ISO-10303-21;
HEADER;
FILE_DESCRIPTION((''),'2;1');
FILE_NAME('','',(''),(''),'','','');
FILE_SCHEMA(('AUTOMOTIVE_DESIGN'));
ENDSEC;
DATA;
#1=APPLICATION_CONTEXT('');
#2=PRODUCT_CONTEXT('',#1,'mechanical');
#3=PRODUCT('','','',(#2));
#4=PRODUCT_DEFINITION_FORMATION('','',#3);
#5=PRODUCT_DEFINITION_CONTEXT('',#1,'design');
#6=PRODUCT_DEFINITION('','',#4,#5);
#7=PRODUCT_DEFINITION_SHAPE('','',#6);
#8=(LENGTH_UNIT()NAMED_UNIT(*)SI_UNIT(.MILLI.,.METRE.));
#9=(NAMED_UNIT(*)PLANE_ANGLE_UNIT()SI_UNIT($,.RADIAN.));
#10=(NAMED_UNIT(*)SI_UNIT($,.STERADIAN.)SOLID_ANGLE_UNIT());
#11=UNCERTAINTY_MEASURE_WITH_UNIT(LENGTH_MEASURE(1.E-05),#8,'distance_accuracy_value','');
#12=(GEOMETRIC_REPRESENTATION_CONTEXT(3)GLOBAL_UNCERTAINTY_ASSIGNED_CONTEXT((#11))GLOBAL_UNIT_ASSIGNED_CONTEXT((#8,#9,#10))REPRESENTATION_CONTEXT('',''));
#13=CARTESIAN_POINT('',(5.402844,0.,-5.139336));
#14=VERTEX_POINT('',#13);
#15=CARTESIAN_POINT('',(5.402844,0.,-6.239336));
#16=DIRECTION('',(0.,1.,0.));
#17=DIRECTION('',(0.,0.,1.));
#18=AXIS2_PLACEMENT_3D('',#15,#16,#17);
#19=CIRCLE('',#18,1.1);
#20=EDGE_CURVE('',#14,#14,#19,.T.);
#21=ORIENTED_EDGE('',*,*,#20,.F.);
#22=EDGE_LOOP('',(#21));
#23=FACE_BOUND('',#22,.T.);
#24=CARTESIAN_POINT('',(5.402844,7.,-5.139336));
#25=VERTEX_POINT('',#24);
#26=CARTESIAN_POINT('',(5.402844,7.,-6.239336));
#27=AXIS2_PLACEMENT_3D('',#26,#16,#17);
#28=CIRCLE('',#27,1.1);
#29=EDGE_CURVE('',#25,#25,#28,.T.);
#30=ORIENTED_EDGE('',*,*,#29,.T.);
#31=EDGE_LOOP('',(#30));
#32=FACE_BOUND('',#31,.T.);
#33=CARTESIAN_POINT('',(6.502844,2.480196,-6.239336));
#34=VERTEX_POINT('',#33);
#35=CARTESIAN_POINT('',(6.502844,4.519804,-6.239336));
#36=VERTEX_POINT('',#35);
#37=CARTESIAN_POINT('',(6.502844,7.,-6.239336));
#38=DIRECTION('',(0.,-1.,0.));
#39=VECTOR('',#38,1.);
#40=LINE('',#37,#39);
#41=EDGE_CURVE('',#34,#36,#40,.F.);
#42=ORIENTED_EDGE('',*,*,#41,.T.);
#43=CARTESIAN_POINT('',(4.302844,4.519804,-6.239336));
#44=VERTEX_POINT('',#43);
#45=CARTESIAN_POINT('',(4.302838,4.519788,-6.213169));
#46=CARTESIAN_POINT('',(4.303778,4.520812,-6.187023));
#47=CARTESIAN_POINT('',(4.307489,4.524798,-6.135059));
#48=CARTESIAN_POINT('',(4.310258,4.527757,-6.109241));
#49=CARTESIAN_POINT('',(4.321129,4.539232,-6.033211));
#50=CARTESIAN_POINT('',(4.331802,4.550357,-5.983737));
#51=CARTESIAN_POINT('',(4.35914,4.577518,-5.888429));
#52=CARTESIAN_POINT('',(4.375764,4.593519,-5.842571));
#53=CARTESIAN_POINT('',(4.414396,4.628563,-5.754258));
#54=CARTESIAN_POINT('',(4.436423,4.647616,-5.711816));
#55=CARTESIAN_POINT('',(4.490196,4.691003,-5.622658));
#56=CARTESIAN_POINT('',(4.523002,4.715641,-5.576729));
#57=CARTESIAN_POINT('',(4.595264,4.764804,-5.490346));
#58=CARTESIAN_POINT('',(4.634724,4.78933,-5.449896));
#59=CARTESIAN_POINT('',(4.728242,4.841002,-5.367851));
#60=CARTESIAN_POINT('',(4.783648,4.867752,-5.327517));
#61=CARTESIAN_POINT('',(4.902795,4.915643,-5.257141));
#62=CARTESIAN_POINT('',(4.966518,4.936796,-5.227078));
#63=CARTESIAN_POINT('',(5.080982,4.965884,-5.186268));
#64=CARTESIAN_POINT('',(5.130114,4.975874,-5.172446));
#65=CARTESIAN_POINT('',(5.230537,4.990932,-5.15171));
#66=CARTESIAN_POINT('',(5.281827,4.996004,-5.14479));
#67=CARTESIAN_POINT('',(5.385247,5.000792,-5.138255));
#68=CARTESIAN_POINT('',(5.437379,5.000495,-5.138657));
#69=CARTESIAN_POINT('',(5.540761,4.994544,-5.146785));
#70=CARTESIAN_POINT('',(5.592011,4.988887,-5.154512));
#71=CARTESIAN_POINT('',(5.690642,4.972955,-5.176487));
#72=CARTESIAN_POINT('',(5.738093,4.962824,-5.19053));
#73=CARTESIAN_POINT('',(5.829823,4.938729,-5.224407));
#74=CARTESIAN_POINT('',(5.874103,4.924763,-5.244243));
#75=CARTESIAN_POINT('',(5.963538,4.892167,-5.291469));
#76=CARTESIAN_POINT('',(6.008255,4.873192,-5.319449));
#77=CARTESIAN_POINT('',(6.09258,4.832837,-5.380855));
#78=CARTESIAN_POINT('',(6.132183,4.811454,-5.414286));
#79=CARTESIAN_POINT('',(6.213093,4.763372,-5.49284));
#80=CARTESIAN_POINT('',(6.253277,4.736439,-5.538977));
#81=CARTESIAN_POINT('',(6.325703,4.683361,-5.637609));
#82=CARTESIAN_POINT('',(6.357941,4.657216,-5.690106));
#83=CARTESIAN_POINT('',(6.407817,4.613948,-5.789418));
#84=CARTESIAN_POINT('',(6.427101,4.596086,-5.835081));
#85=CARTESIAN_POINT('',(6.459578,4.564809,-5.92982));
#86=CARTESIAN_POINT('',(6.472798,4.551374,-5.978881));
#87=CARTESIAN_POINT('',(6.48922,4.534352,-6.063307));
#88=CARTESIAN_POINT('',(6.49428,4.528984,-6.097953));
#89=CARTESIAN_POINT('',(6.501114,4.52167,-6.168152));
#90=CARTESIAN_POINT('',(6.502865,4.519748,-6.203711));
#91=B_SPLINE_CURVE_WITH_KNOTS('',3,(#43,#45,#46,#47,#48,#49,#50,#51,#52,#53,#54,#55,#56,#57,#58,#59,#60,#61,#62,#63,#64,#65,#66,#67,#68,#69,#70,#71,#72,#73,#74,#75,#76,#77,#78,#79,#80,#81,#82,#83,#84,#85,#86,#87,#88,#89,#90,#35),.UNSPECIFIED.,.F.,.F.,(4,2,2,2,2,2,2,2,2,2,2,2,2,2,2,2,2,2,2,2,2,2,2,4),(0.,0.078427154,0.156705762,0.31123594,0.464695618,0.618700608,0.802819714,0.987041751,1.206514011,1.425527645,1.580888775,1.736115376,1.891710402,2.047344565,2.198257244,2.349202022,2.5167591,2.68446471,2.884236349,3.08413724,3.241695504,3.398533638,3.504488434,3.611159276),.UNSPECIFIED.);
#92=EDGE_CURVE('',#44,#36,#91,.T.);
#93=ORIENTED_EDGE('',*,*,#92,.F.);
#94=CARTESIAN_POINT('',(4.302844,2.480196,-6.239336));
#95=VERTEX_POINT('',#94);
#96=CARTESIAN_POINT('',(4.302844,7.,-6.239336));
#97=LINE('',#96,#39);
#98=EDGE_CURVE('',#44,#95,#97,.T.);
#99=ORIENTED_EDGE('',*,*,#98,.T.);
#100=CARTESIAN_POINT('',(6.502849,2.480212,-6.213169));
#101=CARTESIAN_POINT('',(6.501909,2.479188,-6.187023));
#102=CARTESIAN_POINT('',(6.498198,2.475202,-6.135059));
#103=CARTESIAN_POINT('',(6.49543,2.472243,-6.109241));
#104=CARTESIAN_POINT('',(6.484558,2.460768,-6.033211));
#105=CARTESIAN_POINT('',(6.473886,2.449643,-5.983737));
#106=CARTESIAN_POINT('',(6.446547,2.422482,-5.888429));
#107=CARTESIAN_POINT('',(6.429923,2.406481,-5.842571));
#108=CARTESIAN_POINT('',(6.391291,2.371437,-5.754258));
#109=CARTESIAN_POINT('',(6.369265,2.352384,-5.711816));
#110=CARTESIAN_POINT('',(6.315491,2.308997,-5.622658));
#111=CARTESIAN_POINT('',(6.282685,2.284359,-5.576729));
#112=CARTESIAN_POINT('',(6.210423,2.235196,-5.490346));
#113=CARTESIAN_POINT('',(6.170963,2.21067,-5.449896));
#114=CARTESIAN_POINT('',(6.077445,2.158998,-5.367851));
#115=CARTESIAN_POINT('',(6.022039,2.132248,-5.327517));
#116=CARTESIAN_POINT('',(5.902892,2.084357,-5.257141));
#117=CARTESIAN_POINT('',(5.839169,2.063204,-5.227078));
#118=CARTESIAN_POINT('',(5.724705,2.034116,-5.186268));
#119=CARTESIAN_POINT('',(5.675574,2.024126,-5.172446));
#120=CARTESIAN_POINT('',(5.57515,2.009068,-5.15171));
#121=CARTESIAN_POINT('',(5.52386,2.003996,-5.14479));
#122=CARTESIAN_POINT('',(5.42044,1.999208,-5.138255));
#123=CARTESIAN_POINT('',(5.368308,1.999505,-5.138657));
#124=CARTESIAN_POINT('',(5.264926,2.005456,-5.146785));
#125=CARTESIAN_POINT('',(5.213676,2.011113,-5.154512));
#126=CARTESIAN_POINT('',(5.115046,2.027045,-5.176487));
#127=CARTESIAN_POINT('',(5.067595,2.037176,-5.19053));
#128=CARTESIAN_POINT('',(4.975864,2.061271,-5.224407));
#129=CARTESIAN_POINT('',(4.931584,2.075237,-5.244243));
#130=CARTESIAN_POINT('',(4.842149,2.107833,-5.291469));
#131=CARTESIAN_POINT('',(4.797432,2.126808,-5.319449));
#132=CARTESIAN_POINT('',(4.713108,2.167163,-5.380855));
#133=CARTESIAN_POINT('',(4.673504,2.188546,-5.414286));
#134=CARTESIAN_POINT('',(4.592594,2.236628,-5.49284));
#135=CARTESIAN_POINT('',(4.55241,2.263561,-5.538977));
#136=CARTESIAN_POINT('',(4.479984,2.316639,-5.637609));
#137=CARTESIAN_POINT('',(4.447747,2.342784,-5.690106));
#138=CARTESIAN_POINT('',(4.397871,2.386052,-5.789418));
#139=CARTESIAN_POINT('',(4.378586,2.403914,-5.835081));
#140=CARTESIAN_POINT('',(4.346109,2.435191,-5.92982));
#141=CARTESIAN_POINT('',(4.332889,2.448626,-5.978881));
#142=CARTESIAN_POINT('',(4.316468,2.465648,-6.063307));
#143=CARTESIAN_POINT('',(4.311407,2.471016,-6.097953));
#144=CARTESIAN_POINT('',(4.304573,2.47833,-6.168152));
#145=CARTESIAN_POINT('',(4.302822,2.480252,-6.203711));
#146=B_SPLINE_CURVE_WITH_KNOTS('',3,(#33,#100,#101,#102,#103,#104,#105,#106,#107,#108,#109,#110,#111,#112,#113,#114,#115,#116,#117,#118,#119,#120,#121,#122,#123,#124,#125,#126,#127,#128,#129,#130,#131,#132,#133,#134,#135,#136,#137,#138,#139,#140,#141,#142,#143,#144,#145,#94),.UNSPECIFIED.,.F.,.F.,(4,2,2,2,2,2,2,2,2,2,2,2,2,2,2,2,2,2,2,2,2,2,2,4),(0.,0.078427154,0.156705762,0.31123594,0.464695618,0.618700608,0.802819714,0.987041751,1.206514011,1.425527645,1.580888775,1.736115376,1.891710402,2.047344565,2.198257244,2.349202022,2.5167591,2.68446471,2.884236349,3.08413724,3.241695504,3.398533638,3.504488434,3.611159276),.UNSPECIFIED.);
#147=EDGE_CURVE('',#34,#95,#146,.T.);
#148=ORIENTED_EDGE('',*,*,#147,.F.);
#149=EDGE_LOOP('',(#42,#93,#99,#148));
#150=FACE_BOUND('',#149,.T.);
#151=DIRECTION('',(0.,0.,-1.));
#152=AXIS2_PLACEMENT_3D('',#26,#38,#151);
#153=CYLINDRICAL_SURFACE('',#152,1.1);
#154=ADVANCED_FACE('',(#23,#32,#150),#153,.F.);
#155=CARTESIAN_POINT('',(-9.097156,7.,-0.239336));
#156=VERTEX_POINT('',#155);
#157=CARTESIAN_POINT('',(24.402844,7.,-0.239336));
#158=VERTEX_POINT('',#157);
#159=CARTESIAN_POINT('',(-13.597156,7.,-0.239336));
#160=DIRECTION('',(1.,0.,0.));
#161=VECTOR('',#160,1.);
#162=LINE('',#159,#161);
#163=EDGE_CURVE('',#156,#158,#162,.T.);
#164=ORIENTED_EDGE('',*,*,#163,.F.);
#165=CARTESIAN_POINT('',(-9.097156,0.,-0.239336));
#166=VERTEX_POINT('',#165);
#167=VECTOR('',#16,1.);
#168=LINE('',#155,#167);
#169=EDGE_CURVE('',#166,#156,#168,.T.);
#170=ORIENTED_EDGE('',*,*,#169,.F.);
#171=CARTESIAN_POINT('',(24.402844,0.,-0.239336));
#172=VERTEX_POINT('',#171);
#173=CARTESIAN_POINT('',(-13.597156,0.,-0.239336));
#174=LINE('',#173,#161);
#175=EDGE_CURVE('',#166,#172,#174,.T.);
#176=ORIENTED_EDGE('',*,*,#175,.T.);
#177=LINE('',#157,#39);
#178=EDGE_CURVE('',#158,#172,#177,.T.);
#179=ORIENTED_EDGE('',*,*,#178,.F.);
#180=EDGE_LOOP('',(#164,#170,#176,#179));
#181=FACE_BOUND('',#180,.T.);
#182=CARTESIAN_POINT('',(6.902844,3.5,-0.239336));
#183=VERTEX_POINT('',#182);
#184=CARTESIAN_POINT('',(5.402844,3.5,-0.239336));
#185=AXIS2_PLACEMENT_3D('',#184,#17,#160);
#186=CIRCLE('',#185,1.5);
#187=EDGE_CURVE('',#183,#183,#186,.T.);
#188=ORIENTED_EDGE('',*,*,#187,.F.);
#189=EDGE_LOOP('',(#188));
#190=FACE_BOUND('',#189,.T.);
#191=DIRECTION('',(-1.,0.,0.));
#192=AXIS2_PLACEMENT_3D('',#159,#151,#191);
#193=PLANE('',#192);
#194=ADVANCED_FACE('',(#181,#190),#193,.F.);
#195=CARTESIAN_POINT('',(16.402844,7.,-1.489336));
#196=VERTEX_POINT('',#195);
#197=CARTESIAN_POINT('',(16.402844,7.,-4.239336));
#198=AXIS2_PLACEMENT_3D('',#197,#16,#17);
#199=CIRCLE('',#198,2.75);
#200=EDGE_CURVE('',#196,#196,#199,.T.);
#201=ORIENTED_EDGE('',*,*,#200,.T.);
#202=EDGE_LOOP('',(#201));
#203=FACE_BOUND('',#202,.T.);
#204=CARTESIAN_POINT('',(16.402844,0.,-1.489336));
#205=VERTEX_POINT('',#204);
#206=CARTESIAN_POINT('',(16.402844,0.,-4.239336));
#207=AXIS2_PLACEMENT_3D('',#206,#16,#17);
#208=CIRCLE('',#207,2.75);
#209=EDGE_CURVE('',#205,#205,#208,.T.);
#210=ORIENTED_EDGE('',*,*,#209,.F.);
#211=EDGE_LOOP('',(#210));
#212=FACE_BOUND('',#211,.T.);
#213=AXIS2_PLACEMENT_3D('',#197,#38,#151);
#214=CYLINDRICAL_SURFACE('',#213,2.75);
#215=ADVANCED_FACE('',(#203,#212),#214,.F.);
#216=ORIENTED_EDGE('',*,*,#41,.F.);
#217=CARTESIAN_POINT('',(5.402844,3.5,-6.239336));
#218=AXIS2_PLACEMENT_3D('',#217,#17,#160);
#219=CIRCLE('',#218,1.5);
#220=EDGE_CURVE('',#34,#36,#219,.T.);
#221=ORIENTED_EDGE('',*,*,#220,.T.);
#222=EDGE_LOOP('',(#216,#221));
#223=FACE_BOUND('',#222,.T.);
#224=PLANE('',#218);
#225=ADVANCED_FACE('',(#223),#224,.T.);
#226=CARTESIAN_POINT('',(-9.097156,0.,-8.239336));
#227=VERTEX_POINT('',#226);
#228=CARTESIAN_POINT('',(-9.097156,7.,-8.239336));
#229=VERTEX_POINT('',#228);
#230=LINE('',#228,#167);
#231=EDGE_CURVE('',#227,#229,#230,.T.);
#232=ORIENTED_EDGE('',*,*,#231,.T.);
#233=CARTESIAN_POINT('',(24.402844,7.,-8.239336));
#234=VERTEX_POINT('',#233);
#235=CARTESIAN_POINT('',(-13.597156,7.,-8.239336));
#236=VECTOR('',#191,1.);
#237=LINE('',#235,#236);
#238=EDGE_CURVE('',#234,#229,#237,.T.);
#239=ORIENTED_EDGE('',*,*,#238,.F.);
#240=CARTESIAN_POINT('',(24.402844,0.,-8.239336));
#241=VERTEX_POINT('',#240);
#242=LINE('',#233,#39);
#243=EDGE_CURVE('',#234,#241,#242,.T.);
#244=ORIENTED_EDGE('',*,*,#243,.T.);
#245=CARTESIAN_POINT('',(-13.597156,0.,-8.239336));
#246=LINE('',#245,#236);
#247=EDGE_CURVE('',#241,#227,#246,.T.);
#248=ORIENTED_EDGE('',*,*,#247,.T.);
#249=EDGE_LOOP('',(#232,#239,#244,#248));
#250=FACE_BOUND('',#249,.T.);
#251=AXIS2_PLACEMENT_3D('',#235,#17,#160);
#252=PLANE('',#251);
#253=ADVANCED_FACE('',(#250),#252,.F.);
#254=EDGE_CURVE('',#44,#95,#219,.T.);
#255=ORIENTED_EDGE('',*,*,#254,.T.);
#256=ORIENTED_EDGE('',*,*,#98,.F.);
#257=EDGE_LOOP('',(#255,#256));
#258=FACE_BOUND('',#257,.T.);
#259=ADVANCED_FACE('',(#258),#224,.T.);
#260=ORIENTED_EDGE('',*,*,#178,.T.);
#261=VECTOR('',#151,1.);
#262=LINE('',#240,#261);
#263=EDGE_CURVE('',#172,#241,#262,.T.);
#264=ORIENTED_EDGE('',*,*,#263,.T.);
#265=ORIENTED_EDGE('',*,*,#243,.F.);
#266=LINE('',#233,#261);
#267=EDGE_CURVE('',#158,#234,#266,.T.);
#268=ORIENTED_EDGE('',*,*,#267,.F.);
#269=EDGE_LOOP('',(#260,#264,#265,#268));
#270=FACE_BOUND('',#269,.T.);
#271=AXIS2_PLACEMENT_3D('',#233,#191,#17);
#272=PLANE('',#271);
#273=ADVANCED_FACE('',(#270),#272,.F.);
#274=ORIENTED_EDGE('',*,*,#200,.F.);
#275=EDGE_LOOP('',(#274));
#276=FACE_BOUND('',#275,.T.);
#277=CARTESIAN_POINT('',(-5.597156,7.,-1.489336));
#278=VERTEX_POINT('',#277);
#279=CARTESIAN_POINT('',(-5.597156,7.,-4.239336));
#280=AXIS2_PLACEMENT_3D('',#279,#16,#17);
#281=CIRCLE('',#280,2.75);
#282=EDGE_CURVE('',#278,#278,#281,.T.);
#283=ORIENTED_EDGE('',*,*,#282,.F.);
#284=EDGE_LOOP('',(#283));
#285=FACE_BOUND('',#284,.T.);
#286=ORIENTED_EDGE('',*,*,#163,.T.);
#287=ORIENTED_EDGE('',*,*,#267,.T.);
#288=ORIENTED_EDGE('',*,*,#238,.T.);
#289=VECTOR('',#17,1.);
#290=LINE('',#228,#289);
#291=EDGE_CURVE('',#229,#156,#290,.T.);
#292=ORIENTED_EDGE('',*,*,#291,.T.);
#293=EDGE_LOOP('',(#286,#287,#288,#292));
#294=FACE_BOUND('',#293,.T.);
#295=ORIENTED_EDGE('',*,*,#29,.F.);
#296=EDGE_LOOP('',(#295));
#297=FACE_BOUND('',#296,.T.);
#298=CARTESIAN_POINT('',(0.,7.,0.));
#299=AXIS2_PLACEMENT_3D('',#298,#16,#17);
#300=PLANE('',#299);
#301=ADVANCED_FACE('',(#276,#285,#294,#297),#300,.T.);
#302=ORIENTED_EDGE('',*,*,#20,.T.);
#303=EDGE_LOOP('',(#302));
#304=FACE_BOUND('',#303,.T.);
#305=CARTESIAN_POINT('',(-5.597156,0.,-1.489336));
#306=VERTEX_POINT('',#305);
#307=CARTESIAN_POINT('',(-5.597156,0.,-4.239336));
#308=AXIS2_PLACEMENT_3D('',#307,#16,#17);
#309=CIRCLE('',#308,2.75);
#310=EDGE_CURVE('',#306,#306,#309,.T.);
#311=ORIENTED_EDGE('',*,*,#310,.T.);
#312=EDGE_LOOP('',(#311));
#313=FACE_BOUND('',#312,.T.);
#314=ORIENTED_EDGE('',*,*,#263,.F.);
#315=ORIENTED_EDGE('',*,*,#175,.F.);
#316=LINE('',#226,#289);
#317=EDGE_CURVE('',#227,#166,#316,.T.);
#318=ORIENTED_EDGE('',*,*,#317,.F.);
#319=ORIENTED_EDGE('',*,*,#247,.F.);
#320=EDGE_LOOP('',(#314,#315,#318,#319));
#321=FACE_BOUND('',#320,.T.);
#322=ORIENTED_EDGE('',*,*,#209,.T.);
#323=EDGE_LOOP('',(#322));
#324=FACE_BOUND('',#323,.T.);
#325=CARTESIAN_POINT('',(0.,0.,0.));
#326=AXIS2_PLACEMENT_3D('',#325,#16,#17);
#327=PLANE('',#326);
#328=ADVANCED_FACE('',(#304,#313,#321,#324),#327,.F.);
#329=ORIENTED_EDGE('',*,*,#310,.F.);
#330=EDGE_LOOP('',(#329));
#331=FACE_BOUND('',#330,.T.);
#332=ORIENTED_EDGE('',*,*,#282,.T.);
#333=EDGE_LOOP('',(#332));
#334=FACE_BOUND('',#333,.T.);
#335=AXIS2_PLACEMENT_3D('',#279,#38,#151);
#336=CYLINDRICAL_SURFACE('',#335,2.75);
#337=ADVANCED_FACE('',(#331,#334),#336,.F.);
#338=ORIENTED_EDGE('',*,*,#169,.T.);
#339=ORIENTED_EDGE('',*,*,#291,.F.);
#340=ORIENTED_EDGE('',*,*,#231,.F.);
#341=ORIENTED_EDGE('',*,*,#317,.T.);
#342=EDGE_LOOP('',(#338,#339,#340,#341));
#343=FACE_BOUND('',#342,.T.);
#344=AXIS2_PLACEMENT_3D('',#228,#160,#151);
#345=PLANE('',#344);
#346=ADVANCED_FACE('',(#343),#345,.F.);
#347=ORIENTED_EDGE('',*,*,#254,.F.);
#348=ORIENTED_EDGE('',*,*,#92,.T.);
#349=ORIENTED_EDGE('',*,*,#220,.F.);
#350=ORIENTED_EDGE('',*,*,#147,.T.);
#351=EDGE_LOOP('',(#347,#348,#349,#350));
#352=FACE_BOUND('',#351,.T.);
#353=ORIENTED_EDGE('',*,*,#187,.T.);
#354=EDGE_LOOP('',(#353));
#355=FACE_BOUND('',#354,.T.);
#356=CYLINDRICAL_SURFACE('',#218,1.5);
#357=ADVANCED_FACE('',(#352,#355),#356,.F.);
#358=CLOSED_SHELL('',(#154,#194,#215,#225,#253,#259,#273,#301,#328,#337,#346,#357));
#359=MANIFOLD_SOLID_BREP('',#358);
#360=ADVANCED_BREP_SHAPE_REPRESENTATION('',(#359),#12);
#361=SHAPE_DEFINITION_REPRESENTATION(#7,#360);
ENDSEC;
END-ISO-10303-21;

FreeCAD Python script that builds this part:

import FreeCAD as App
import Part
import Sketcher
from FreeCAD import Vector

doc = App.newDocument("Part")
body = doc.addObject("PartDesign::Body", "Body")

# Sketch on XZ plane
sketch1 = body.newObject("Sketcher::SketchObject", "Sketch")
sketch1.AttachmentSupport = (doc.getObject("XZ_Plane"), [""])
sketch1.MapMode = "FlatFace"
sketch1.addGeometry([
    Part.LineSegment(Vector(-13.6, -8.2, 0), Vector(-13.6, -0.2, 0)),  # 0
    Part.LineSegment(Vector(-13.6, -0.2, 0), Vector(24.4, -0.2, 0)),  # 1
    Part.LineSegment(Vector(24.4, -0.2, 0), Vector(24.4, -8.2, 0)),  # 2
    Part.LineSegment(Vector(24.4, -8.2, 0), Vector(-13.6, -8.2, 0)),  # 3
    Part.Circle(Vector(-5.6, -4.2, 0), Vector(0, 0, 1), 2.8),  # 4
    Part.Circle(Vector(16.4, -4.2, 0), Vector(0, 0, 1), 2.8),  # 5
    Part.Circle(Vector(5.4, -6.2, 0), Vector(0, 0, 1), 1.1),  # 6
], False)
sketch1.addConstraint([
    Sketcher.Constraint("Coincident", 0, 2, 1, 1),
    Sketcher.Constraint("Coincident", 1, 2, 2, 1),
    Sketcher.Constraint("Coincident", 2, 2, 3, 1),
    Sketcher.Constraint("Coincident", 3, 2, 0, 1),
    Sketcher.Constraint("Vertical", 0),
    Sketcher.Constraint("Horizontal", 1),
    Sketcher.Constraint("Vertical", 2),
    Sketcher.Constraint("Horizontal", 3),
    Sketcher.Constraint("Equal", 4, 5),
    Sketcher.Constraint("Horizontal", 4, 3, 5, 3),
    Sketcher.Constraint("Diameter", 4, 5.5),
    Sketcher.Constraint("Diameter", 6, 2.2),
    Sketcher.Constraint("DistanceX", 1, 1, 1, 2, 38.0),
    Sketcher.Constraint("DistanceY", 0, 1, 0, 2, 8.0),
    Sketcher.Constraint("DistanceX", 4, 3, 5, 3, 22.0),
    Sketcher.Constraint("DistanceX", 4, 3, 6, 3, 11.0),
    Sketcher.Constraint("DistanceY", 6, 3, 4, 3, 2.0),
    Sketcher.Constraint("DistanceX", 0, 2, 4, 3, 8.0),
    Sketcher.Constraint("DistanceY", 4, 3, 0, 2, 4.0),
    Sketcher.Constraint("DistanceX", 4, 3, -1, 1, 5.597156),
    Sketcher.Constraint("DistanceY", 4, 3, -1, 1, 4.239336),
])
pad1 = body.newObject("PartDesign::Pad", "Pad")
pad1.Profile = sketch1
pad1.Length = 7
pad1.Reversed = True

# Sketch on XY plane
sketch2 = body.newObject("Sketcher::SketchObject", "Sketch001")
sketch2.AttachmentSupport = (doc.getObject("XY_Plane"), [""])
sketch2.MapMode = "FlatFace"
sketch2.AttachmentOffset = App.Placement(Vector(0, 0, -0.239336), App.Rotation())
sketch2.addGeometry([
    Part.LineSegment(Vector(-13.6, 7, 0), Vector(-13.6, 0, 0)),
    Part.LineSegment(Vector(-13.6, 0, 0), Vector(-9.1, 0, 0)),
    Part.LineSegment(Vector(-9.1, 0, 0), Vector(-9.1, 7, 0)),
    Part.LineSegment(Vector(-9.1, 7, 0), Vector(-13.6, 7, 0)),
], False)
sketch2.addConstraint([
    Sketcher.Constraint("Coincident", 0, 2, 1, 1),
    Sketcher.Constraint("Coincident", 1, 2, 2, 1),
    Sketcher.Constraint("Coincident", 2, 2, 3, 1),
    Sketcher.Constraint("Coincident", 3, 2, 0, 1),
    Sketcher.Constraint("Vertical", 0),
    Sketcher.Constraint("Horizontal", 1),
    Sketcher.Constraint("Vertical", 2),
    Sketcher.Constraint("Horizontal", 3),
    Sketcher.Constraint("PointOnObject", 0, 2, -1),
    Sketcher.Constraint("DistanceY", 0, 2, 0, 1, 7.0),
    Sketcher.Constraint("DistanceX", 1, 1, 1, 2, 4.5),
    Sketcher.Constraint("DistanceX", 0, 2, -1, 1, 13.597156),
])
pocket1 = body.newObject("PartDesign::Pocket", "Pocket")
pocket1.Profile = sketch2
pocket1.Type = "ThroughAll"

# Sketch on XY plane
sketch3 = body.newObject("Sketcher::SketchObject", "Sketch002")
sketch3.AttachmentSupport = (doc.getObject("XY_Plane"), [""])
sketch3.MapMode = "FlatFace"
sketch3.AttachmentOffset = App.Placement(Vector(0, 0, -0.239336), App.Rotation())
sketch3.addGeometry(Part.Circle(Vector(5.4, 3.5, 0), Vector(0, 0, 1), 1.5), False)
sketch3.addConstraint([
    Sketcher.Constraint("Diameter", 0, 3.0),
    Sketcher.Constraint("DistanceY", -1, 1, 0, 3, 3.5),
    Sketcher.Constraint("DistanceX", -1, 1, 0, 3, 5.402844),
])
pocket2 = body.newObject("PartDesign::Pocket", "Pocket001")
pocket2.Profile = sketch3
pocket2.Length = 6

doc.recompute()
